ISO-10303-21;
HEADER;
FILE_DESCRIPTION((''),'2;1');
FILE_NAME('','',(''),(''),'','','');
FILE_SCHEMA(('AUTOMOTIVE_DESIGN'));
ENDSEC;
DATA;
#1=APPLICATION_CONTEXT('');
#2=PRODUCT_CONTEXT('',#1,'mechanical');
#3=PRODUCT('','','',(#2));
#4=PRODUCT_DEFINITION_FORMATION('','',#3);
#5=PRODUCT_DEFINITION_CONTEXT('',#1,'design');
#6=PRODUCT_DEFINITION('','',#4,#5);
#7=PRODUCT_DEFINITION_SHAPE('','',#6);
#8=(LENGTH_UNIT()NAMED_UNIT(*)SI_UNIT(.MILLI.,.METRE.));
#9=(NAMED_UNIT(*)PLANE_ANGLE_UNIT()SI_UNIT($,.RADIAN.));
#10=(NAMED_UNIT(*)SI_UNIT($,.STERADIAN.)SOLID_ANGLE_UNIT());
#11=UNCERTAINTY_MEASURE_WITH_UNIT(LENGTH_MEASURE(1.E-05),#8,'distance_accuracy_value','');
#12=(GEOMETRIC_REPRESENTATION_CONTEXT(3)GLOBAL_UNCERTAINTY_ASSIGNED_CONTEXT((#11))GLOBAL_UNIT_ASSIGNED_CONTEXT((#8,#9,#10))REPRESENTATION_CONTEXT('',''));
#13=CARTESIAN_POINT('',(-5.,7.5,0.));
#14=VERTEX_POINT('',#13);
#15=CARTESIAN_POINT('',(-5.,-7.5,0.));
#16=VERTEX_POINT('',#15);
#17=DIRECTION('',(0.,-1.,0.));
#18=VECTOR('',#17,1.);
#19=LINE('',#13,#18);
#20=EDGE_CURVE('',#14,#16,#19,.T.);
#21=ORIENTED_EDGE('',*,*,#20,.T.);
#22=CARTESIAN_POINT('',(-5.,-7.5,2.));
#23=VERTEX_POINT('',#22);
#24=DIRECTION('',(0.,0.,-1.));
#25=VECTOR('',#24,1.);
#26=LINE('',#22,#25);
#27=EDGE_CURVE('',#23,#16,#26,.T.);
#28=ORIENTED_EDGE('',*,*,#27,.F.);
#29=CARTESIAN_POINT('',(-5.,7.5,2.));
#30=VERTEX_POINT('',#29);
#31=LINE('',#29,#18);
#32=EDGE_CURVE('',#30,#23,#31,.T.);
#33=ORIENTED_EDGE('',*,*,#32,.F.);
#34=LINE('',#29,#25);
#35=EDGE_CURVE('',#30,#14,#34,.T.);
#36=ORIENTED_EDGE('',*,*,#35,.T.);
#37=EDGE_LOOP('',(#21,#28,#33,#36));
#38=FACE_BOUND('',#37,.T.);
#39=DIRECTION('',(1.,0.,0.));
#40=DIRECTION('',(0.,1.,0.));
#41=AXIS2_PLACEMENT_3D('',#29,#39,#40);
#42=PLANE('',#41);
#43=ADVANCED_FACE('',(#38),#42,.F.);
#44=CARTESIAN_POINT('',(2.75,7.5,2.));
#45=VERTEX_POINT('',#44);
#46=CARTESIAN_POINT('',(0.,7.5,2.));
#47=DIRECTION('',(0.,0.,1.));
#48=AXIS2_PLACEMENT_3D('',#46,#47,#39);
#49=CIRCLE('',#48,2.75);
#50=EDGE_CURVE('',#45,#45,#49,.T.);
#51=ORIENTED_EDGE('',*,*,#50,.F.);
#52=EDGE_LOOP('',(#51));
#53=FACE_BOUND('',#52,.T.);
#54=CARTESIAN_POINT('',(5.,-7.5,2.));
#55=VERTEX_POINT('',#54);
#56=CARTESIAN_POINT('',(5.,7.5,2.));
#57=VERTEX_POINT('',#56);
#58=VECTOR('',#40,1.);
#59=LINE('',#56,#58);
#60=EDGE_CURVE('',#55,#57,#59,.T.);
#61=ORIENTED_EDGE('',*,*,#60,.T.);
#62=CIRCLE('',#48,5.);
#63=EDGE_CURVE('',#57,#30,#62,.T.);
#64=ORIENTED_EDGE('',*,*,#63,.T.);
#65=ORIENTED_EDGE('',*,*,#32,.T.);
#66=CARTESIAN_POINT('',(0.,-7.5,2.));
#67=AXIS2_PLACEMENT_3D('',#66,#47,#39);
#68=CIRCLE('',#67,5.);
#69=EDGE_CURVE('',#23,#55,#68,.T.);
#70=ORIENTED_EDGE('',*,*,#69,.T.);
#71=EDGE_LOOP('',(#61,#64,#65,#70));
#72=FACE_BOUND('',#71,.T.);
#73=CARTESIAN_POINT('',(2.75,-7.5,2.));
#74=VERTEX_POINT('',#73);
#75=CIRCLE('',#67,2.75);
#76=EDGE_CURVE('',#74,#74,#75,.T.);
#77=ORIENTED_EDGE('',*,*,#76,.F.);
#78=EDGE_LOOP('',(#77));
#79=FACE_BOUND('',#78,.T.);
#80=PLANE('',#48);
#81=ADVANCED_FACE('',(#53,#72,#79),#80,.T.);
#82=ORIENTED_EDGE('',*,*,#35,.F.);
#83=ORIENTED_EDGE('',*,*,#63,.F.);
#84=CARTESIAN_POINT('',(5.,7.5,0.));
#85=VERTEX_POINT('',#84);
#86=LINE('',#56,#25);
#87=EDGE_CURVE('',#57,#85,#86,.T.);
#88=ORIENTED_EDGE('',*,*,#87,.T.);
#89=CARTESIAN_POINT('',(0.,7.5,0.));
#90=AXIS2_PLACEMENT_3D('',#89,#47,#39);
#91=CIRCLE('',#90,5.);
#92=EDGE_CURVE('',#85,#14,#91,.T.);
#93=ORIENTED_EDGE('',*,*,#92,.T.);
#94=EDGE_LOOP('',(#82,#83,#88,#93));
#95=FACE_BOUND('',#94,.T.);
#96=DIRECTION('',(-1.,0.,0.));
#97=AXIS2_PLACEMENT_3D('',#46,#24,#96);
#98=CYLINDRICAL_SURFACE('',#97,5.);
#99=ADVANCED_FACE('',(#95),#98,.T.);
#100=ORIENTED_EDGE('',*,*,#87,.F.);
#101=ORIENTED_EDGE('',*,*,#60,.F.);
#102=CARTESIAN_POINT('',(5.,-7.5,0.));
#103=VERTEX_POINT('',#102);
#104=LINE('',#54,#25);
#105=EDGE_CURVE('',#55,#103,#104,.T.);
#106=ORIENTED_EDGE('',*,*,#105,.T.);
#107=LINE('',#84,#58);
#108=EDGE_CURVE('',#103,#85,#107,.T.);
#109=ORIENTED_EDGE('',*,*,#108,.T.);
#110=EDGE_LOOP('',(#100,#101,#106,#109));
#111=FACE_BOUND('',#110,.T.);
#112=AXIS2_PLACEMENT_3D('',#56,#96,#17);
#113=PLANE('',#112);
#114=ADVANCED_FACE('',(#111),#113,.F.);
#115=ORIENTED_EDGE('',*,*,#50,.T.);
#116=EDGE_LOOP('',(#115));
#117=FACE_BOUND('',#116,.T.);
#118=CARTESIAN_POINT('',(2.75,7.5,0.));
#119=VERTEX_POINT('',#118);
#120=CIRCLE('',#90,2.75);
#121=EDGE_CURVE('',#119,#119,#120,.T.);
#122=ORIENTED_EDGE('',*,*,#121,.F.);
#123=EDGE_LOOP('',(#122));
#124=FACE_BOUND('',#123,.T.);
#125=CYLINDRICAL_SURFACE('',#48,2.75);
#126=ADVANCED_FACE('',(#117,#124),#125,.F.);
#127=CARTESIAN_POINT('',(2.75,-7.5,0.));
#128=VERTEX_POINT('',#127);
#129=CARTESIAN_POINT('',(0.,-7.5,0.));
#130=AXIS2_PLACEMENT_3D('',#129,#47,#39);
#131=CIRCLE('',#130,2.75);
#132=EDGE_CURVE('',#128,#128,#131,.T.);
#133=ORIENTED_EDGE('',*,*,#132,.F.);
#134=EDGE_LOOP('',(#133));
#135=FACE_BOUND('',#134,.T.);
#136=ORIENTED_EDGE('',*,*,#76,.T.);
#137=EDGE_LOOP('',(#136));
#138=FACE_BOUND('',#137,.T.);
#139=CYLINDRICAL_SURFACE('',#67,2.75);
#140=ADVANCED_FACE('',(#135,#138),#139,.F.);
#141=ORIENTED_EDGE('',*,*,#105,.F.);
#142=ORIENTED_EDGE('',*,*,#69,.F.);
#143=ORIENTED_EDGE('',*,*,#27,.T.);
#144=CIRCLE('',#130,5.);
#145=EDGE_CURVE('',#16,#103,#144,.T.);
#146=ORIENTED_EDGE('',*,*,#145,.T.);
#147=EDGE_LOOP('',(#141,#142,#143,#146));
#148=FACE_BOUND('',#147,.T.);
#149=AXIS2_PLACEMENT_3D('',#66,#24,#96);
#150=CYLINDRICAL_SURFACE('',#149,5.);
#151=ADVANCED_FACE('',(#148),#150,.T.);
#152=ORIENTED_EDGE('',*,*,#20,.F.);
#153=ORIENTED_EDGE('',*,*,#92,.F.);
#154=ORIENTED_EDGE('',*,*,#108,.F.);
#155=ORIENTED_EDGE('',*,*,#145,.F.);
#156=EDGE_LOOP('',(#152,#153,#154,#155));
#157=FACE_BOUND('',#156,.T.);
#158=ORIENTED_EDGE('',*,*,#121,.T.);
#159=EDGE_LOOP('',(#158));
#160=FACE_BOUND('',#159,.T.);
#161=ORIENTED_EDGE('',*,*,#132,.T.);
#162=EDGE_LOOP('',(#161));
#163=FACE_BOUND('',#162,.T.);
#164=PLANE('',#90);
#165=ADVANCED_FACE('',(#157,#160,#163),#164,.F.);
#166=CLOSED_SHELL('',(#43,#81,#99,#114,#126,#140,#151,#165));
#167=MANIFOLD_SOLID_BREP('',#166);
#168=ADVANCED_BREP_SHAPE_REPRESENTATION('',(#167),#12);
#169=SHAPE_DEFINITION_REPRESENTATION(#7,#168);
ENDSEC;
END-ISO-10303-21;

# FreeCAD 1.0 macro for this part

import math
import FreeCAD as App
import Part
import Sketcher
Q = App.Units.Quantity

doc = App.newDocument("Part")
body = doc.addObject("PartDesign::Body", "Body")

# Sketch on XY plane
sketch1 = body.newObject("Sketcher::SketchObject", "Sketch")
sketch1.AttachmentSupport = (doc.getObject("XY_Plane"), [""])
sketch1.MapMode = "FlatFace"
sketch1.addGeometry([
    Part.LineSegment(App.Vector(5, -8, 0), App.Vector(5, 8, 0)),
    Part.ArcOfCircle(Part.Circle(App.Vector(0, 8, 0), App.Vector(0, 0, 1), 5), math.radians(0), math.radians(180)),
    Part.LineSegment(App.Vector(-5, 8, 0), App.Vector(-5, -8, 0)),
    Part.ArcOfCircle(Part.Circle(App.Vector(0, -8, 0), App.Vector(0, 0, 1), 5), math.radians(180), math.radians(360)),
], False)
sketch1.addConstraint([
    Sketcher.Constraint("Tangent", 0, 2, 1, 1),
    Sketcher.Constraint("Tangent", 1, 2, 2, 1),
    Sketcher.Constraint("Tangent", 2, 2, 3, 1),
    Sketcher.Constraint("Tangent", 3, 2, 0, 1),
    Sketcher.Constraint("Vertical", 0),
    Sketcher.Constraint("Vertical", 2),
    Sketcher.Constraint("Symmetric", 1, 3, 3, 3, -1, 1),
    Sketcher.Constraint("Radius", 1, Q("5 mm")),
    Sketcher.Constraint("DistanceY", 0, 1, 0, 2, Q("15 mm")),
])
pad1 = body.newObject("PartDesign::Pad", "Pad")
pad1.Profile = sketch1
pad1.Length = 2

# Sketch on XY plane
sketch2 = body.newObject("Sketcher::SketchObject", "Sketch001")
sketch2.AttachmentSupport = (doc.getObject("XY_Plane"), [""])
sketch2.MapMode = "FlatFace"
sketch2.AttachmentOffset = App.Placement(App.Vector(0, 0, 2), App.Rotation())
sketch2.addGeometry([
    Part.Circle(App.Vector(0, 7.5, 0), App.Vector(0, 0, 1), 2.8),
    Part.Circle(App.Vector(0, -7.5, 0), App.Vector(0, 0, 1), 2.8),
], False)
sketch2.addConstraint([
    Sketcher.Constraint("Equal", 0, 1),
    Sketcher.Constraint("Symmetric", 0, 3, 1, 3, -1, 1),
    Sketcher.Constraint("PointOnObject", 0, 3, -2),
    Sketcher.Constraint("Diameter", 0, Q("5.5 mm")),
    Sketcher.Constraint("DistanceY", 1, 3, 0, 3, Q("15 mm")),
])
doc.recompute()
hole = body.newObject("PartDesign::Hole", "Hole")
hole.Profile = sketch2
hole.ThreadType = "None"
hole.Diameter = 5.5
hole.DepthType = "ThroughAll"

doc.recompute()
